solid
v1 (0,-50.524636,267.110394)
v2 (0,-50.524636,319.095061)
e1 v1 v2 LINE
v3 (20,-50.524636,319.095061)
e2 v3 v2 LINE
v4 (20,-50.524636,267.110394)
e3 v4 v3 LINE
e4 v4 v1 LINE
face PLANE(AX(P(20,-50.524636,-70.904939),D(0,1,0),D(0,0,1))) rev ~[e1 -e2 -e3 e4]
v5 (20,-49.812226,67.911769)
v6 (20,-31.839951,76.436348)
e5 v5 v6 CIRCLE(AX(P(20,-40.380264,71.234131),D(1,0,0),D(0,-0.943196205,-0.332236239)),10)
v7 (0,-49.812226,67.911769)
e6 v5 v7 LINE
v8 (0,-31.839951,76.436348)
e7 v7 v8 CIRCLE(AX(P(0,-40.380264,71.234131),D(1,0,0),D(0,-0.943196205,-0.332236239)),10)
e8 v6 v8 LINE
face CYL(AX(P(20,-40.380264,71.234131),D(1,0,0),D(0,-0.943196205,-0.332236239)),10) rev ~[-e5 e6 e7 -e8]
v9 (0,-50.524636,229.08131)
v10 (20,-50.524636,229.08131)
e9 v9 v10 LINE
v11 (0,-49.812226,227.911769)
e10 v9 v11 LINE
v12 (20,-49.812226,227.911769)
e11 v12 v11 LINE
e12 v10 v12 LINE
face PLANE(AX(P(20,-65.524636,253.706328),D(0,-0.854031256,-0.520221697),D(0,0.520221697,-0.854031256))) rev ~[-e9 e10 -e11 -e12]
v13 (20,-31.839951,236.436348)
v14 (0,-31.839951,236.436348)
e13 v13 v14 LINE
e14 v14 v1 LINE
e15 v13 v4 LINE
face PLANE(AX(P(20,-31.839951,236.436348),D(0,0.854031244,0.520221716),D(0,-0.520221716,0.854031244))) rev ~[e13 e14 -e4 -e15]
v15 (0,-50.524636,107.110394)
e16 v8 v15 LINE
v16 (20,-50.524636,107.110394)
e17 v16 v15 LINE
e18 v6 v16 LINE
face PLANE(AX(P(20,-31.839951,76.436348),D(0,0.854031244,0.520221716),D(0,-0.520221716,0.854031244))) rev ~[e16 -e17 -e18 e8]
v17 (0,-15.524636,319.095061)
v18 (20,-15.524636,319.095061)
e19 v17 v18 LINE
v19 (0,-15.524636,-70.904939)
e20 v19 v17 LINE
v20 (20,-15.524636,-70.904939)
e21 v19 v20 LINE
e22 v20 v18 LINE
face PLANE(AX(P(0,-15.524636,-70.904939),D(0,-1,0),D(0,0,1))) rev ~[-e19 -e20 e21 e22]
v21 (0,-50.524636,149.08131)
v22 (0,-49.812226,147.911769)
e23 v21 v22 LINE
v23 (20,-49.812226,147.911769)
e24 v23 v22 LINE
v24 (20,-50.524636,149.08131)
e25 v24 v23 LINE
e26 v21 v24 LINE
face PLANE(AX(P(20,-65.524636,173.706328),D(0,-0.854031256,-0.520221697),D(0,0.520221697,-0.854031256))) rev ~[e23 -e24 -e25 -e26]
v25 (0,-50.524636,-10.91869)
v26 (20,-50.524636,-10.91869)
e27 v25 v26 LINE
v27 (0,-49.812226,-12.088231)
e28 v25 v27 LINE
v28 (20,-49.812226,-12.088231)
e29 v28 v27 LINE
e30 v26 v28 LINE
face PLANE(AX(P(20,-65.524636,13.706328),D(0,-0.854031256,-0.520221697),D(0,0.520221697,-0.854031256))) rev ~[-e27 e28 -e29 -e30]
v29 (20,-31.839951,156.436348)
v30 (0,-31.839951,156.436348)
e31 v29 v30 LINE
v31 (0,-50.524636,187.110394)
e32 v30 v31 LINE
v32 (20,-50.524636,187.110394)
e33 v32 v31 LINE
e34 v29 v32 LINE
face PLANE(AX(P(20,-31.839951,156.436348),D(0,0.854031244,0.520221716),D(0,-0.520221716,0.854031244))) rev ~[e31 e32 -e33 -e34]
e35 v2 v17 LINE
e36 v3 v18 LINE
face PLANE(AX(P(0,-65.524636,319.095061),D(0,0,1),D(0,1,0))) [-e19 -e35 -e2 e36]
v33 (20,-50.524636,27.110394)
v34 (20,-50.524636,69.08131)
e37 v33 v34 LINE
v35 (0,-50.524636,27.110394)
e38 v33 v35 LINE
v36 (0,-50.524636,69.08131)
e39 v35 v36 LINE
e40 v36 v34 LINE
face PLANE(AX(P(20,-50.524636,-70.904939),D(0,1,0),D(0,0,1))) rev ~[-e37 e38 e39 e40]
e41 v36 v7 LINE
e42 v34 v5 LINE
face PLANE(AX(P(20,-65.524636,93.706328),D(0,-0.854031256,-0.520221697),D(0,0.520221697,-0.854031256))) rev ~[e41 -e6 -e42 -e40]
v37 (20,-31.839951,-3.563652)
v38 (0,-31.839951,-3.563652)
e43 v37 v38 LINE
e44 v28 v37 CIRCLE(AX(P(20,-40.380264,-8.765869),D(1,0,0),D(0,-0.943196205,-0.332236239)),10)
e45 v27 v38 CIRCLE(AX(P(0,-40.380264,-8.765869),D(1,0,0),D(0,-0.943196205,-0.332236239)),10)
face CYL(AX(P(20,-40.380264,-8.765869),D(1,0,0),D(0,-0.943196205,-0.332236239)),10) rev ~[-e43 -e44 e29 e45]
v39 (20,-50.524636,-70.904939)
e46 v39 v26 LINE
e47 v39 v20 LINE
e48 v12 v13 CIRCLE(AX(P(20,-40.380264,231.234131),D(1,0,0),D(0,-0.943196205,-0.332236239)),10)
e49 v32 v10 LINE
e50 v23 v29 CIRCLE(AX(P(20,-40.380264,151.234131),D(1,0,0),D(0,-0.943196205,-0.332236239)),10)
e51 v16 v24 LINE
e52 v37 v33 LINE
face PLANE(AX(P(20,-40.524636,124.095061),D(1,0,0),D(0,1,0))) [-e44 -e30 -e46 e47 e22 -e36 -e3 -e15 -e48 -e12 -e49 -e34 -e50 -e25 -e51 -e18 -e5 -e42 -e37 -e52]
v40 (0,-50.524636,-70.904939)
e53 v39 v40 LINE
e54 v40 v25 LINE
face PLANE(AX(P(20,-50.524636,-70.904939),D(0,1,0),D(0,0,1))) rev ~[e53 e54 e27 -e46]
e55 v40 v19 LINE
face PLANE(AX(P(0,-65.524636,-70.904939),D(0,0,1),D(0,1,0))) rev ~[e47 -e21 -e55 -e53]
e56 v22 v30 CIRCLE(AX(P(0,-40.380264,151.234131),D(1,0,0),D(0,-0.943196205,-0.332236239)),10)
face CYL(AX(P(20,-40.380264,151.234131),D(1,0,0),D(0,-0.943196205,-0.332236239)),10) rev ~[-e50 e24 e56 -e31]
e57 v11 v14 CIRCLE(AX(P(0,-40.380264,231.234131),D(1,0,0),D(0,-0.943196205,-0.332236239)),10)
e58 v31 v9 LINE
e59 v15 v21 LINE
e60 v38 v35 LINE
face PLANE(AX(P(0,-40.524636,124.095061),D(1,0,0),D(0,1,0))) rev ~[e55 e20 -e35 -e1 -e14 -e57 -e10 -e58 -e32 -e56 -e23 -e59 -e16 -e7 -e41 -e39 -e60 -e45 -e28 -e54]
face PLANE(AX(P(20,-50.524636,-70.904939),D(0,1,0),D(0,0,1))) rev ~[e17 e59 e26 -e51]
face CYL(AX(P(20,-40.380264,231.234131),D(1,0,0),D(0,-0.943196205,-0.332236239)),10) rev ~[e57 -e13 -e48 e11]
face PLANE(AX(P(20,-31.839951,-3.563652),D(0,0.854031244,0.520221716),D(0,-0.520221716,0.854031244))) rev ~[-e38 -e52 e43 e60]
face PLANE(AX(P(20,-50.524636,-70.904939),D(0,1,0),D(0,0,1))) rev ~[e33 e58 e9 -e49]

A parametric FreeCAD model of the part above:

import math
import FreeCAD as App
import Part
import Sketcher

V = App.Vector


def add_polygon(sketch, points):
    """Adds a closed chain of lines whose ends are joined by coincident constraints."""
    first, n = sketch.GeometryCount, len(points)
    for a, b in zip(points, points[1:] + points[:1]):
        sketch.addGeometry(Part.LineSegment(App.Vector(*a, 0), App.Vector(*b, 0)), False)
    for i in range(n):
        sketch.addConstraint(Sketcher.Constraint("Coincident", first + i, 2, first + (i + 1) % n, 1))

doc = App.newDocument("Part")
params = doc.addObject("Spreadsheet::Sheet", "Params")
for row, (alias, value) in enumerate([
    ("sketch1_width", "50 mm"),
    ("sketch1_height", "390 mm"),
    ("pad1_length", "20 mm"),
    ("sketch2_radius", "10 mm"),
    ("sketch3_width", "15 mm"),
    ("sketch3_height", "390 mm"),
], start=1):
    params.set(f"A{row}", alias)
    params.set(f"B{row}", "=" + value)
    params.setAlias(f"B{row}", alias)

body = doc.addObject("PartDesign::Body", "Body")

sketch1 = body.newObject("Sketcher::SketchObject", "Sketch")
sketch1.AttachmentSupport = (doc.getObject("YZ_Plane"), [""])
sketch1.MapMode = "FlatFace"
add_polygon(sketch1, [(-66, 319), (-66, -71), (-16, -71), (-16, 319)])
sketch1.addConstraint([
    Sketcher.Constraint("Vertical", 0),
    Sketcher.Constraint("Horizontal", 1),
    Sketcher.Constraint("Vertical", 2),
    Sketcher.Constraint("Horizontal", 3),
    Sketcher.Constraint("DistanceX", 1, 1, 1, 2, 50.0),
    Sketcher.Constraint("DistanceY", 0, 2, 0, 1, 390.0),
    Sketcher.Constraint("DistanceY", 0, 2, -1, 1, 70.904939),
    Sketcher.Constraint("DistanceX", 0, 2, -1, 1, 65.524636),
])
sketch1.setExpression("Constraints[8]", "Params.sketch1_width")
sketch1.setExpression("Constraints[9]", "Params.sketch1_height")
pad1 = body.newObject("PartDesign::Pad", "Pad")
pad1.Profile = sketch1
pad1.setExpression("Length", "Params.pad1_length")

sketch2 = body.newObject("Sketcher::SketchObject", "Sketch001")
sketch2.AttachmentSupport = (doc.getObject("YZ_Plane"), [""])
sketch2.MapMode = "FlatFace"
sketch2.AttachmentOffset = App.Placement(V(0, 0, 20), App.Rotation())
sketch2.addGeometry([
    Part.LineSegment(V(-32, -4, 0), V(-66, 52, 0)),
    Part.LineSegment(V(-66, 52, 0), V(-66, 14, 0)),
    Part.LineSegment(V(-66, 14, 0), V(-50, -12, 0)),
    Part.ArcOfCircle(Part.Circle(V(-40, -9, 0), V(0, 0, 1), 10), math.radians(-161), math.radians(31)),
    Part.LineSegment(V(-32, 76, 0), V(-66, 132, 0)),
    Part.LineSegment(V(-66, 132, 0), V(-66, 94, 0)),
    Part.LineSegment(V(-66, 94, 0), V(-50, 68, 0)),
    Part.ArcOfCircle(Part.Circle(V(-40, 71, 0), V(0, 0, 1), 10), math.radians(-161), math.radians(31)),
    Part.LineSegment(V(-32, 156, 0), V(-66, 212, 0)),
    Part.LineSegment(V(-66, 212, 0), V(-66, 174, 0)),
    Part.LineSegment(V(-66, 174, 0), V(-50, 148, 0)),
    Part.ArcOfCircle(Part.Circle(V(-40, 151, 0), V(0, 0, 1), 10), math.radians(-161), math.radians(31)),
    Part.LineSegment(V(-32, 236, 0), V(-66, 292, 0)),
    Part.LineSegment(V(-66, 292, 0), V(-66, 254, 0)),
    Part.LineSegment(V(-66, 254, 0), V(-50, 228, 0)),
    Part.ArcOfCircle(Part.Circle(V(-40, 231, 0), V(0, 0, 1), 10), math.radians(-161), math.radians(31)),
], False)
sketch2.addConstraint([
    Sketcher.Constraint("Coincident", 0, 2, 1, 1),
    Sketcher.Constraint("Coincident", 1, 2, 2, 1),
    Sketcher.Constraint("Coincident", 2, 2, 3, 1),
    Sketcher.Constraint("Tangent", 3, 2, 0, 1),
    Sketcher.Constraint("Coincident", 4, 2, 5, 1),
    Sketcher.Constraint("Coincident", 5, 2, 6, 1),
    Sketcher.Constraint("Coincident", 6, 2, 7, 1),
    Sketcher.Constraint("Tangent", 7, 2, 4, 1),
    Sketcher.Constraint("Coincident", 8, 2, 9, 1),
    Sketcher.Constraint("Coincident", 9, 2, 10, 1),
    Sketcher.Constraint("Coincident", 10, 2, 11, 1),
    Sketcher.Constraint("Tangent", 11, 2, 8, 1),
    Sketcher.Constraint("Coincident", 12, 2, 13, 1),
    Sketcher.Constraint("Coincident", 13, 2, 14, 1),
    Sketcher.Constraint("Coincident", 14, 2, 15, 1),
    Sketcher.Constraint("Tangent", 15, 2, 12, 1),
    Sketcher.Constraint("Vertical", 1),
    Sketcher.Constraint("Vertical", 5),
    Sketcher.Constraint("Vertical", 9),
    Sketcher.Constraint("Vertical", 13),
    Sketcher.Constraint("Equal", 3, 7),
    Sketcher.Constraint("Equal", 7, 11),
    Sketcher.Constraint("Equal", 11, 15),
    Sketcher.Constraint("Parallel", 0, 2),
    Sketcher.Constraint("Parallel", 2, 4),
    Sketcher.Constraint("Parallel", 4, 6),
    Sketcher.Constraint("Parallel", 6, 8),
    Sketcher.Constraint("Parallel", 8, 10),
    Sketcher.Constraint("Parallel", 10, 12),
    Sketcher.Constraint("Parallel", 12, 14),
    Sketcher.Constraint("Vertical", 3, 3, 7, 3),
    Sketcher.Constraint("Vertical", 7, 3, 11, 3),
    Sketcher.Constraint("Vertical", 11, 3, 15, 3),
    Sketcher.Constraint("Vertical", 1, 2, 4, 2),
    Sketcher.Constraint("Vertical", 2, 2, 6, 2),
    Sketcher.Constraint("Vertical", 5, 2, 8, 2),
    Sketcher.Constraint("Vertical", 6, 2, 10, 2),
    Sketcher.Constraint("Vertical", 9, 2, 12, 2),
    Sketcher.Constraint("Vertical", 10, 2, 14, 2),
    Sketcher.Constraint("Radius", 3, 10.0),
    Sketcher.Constraint("DistanceY", 3, 3, 7, 3, 80.0),
    Sketcher.Constraint("DistanceY", 7, 3, 11, 3, 80.0),
    Sketcher.Constraint("DistanceY", 11, 3, 15, 3, 80.0),
    Sketcher.Constraint("DistanceY", 1, 2, 1, 1, 38.029083),
    Sketcher.Constraint("DistanceY", 3, 3, -1, 1, 8.765869),
    Sketcher.Constraint("DistanceY", -1, 1, 0, 2, 51.735411),
    Sketcher.Constraint("DistanceY", 2, 2, -1, 1, 12.088231),
    Sketcher.Constraint("DistanceX", 3, 2, -1, 1, 31.839951),
])
sketch2.setExpression("Constraints[39]", "Params.sketch2_radius")
pocket1 = body.newObject("PartDesign::Pocket", "Pocket")
pocket1.Profile = sketch2
pocket1.Type = "ThroughAll"

sketch3 = body.newObject("Sketcher::SketchObject", "Sketch002")
sketch3.AttachmentSupport = (doc.getObject("YZ_Plane"), [""])
sketch3.MapMode = "FlatFace"
sketch3.AttachmentOffset = App.Placement(V(0, 0, 20), App.Rotation())
add_polygon(sketch3, [(-66, 319), (-66, -71), (-51, -71), (-51, 319)])
sketch3.addConstraint([
    Sketcher.Constraint("Vertical", 0),
    Sketcher.Constraint("Horizontal", 1),
    Sketcher.Constraint("Vertical", 2),
    Sketcher.Constraint("Horizontal", 3),
    Sketcher.Constraint("DistanceX", 1, 1, 1, 2, 15.0),
    Sketcher.Constraint("DistanceY", 0, 2, 0, 1, 390.0),
    Sketcher.Constraint("DistanceY", 0, 2, -1, 1, 70.904939),
    Sketcher.Constraint("DistanceX", 0, 2, -1, 1, 65.524636),
])
sketch3.setExpression("Constraints[8]", "Params.sketch3_width")
sketch3.setExpression("Constraints[9]", "Params.sketch3_height")
pocket2 = body.newObject("PartDesign::Pocket", "Pocket001")
pocket2.Profile = sketch3
pocket2.Type = "ThroughAll"

doc.recompute()
